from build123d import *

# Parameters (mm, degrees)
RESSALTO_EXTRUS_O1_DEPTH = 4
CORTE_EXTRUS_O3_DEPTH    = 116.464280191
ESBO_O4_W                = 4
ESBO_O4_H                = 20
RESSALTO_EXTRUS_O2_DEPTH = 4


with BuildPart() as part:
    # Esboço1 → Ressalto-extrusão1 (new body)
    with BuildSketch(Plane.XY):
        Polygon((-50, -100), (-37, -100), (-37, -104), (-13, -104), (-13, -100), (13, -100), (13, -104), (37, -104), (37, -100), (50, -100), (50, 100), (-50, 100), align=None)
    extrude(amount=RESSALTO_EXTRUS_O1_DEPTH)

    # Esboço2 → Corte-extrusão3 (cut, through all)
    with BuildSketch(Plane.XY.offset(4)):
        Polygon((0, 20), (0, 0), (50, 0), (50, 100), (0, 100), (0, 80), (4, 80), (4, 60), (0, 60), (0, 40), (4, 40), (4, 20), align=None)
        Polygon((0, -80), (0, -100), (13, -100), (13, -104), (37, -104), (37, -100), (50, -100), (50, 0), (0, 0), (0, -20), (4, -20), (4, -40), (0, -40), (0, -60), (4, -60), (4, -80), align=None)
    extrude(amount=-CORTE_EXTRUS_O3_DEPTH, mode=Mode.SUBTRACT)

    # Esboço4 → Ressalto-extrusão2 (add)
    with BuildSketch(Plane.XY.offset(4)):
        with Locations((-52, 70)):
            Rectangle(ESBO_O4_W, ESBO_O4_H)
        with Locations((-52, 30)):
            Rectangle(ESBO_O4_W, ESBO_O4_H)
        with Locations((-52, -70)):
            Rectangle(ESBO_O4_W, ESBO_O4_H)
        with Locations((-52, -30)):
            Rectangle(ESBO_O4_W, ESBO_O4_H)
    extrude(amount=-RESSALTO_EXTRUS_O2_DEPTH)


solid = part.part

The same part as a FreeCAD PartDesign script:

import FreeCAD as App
import Part
import Sketcher
from FreeCAD import Vector
Q = App.Units.Quantity


def add_polygon(sketch, points):
    """Adds a closed chain of lines whose ends are joined by coincident constraints."""
    first, n = sketch.GeometryCount, len(points)
    for a, b in zip(points, points[1:] + points[:1]):
        sketch.addGeometry(Part.LineSegment(App.Vector(*a, 0), App.Vector(*b, 0)), False)
    for i in range(n):
        sketch.addConstraint(Sketcher.Constraint("Coincident", first + i, 2, first + (i + 1) % n, 1))

doc = App.newDocument("Part")
body = doc.addObject("PartDesign::Body", "Body")

sketch1 = body.newObject("Sketcher::SketchObject", "Sketch")
sketch1.AttachmentSupport = (doc.getObject("XY_Plane"), [""])
sketch1.MapMode = "FlatFace"
add_polygon(sketch1, [(-50, -100), (-37, -100), (-37, -104), (-13, -104), (-13, -100), (13, -100), (13, -104), (37, -104), (37, -100), (50, -100), (50, 100), (-50, 100)])
sketch1.addConstraint(Sketcher.Constraint("Horizontal", 0))
sketch1.addConstraint(Sketcher.Constraint("Vertical", 1))
sketch1.addConstraint(Sketcher.Constraint("Horizontal", 2))
sketch1.addConstraint(Sketcher.Constraint("Vertical", 3))
sketch1.addConstraint(Sketcher.Constraint("Horizontal", 4))
sketch1.addConstraint(Sketcher.Constraint("Vertical", 5))
sketch1.addConstraint(Sketcher.Constraint("Horizontal", 6))
sketch1.addConstraint(Sketcher.Constraint("Vertical", 7))
sketch1.addConstraint(Sketcher.Constraint("Horizontal", 8))
sketch1.addConstraint(Sketcher.Constraint("Vertical", 9))
sketch1.addConstraint(Sketcher.Constraint("Horizontal", 10))
sketch1.addConstraint(Sketcher.Constraint("Vertical", 11))
sketch1.addConstraint(Sketcher.Constraint("Symmetric", 8, 2, 10, 2, -1, 1))
sketch1.addConstraint(Sketcher.Constraint("Symmetric", 2, 2, 5, 2, -2))
sketch1.addConstraint(Sketcher.Constraint("Symmetric", 0, 2, 7, 2, -2))
sketch1.addConstraint(Sketcher.Constraint("Horizontal", 0, 2, 3, 2))
sketch1.addConstraint(Sketcher.Constraint("DistanceX", 0, 1, 0, 2, Q("13 mm")))
sketch1.addConstraint(Sketcher.Constraint("DistanceX", 2, 1, 2, 2, Q("24 mm")))
sketch1.addConstraint(Sketcher.Constraint("DistanceX", 4, 1, 4, 2, Q("26 mm")))
sketch1.addConstraint(Sketcher.Constraint("DistanceY", 1, 2, 1, 1, Q("4 mm")))
sketch1.addConstraint(Sketcher.Constraint("DistanceY", 9, 1, 9, 2, Q("200 mm")))
pad1 = body.newObject("PartDesign::Pad", "Pad")
pad1.Profile = sketch1
pad1.Length = 4

sketch2 = body.newObject("Sketcher::SketchObject", "Sketch001")
sketch2.AttachmentSupport = (doc.getObject("XY_Plane"), [""])
sketch2.MapMode = "FlatFace"
sketch2.AttachmentOffset = App.Placement(Vector(0, 0, 4), App.Rotation())
add_polygon(sketch2, [(0, 20), (0, -20), (4, -20), (4, -40), (0, -40), (0, -60), (4, -60), (4, -80), (0, -80), (0, -100), (13, -100), (13, -104), (37, -104), (37, -100), (50, -100), (50, 100), (0, 100), (0, 80), (4, 80), (4, 60), (0, 60), (0, 40), (4, 40), (4, 20)])
sketch2.addConstraint(Sketcher.Constraint("Vertical", 0))
sketch2.addConstraint(Sketcher.Constraint("Horizontal", 1))
sketch2.addConstraint(Sketcher.Constraint("Vertical", 2))
sketch2.addConstraint(Sketcher.Constraint("Horizontal", 3))
sketch2.addConstraint(Sketcher.Constraint("Vertical", 4))
sketch2.addConstraint(Sketcher.Constraint("Horizontal", 5))
sketch2.addConstraint(Sketcher.Constraint("Vertical", 6))
sketch2.addConstraint(Sketcher.Constraint("Horizontal", 7))
sketch2.addConstraint(Sketcher.Constraint("Vertical", 8))
sketch2.addConstraint(Sketcher.Constraint("Horizontal", 9))
sketch2.addConstraint(Sketcher.Constraint("Vertical", 10))
sketch2.addConstraint(Sketcher.Constraint("Horizontal", 11))
sketch2.addConstraint(Sketcher.Constraint("Vertical", 12))
sketch2.addConstraint(Sketcher.Constraint("Horizontal", 13))
sketch2.addConstraint(Sketcher.Constraint("Vertical", 14))
sketch2.addConstraint(Sketcher.Constraint("Horizontal", 15))
sketch2.addConstraint(Sketcher.Constraint("Vertical", 16))
sketch2.addConstraint(Sketcher.Constraint("Horizontal", 17))
sketch2.addConstraint(Sketcher.Constraint("Vertical", 18))
sketch2.addConstraint(Sketcher.Constraint("Horizontal", 19))
sketch2.addConstraint(Sketcher.Constraint("Vertical", 20))
sketch2.addConstraint(Sketcher.Constraint("Horizontal", 21))
sketch2.addConstraint(Sketcher.Constraint("Vertical", 22))
sketch2.addConstraint(Sketcher.Constraint("Horizontal", 23))
sketch2.addConstraint(Sketcher.Constraint("Symmetric", 8, 2, 15, 2, -1, 1))
sketch2.addConstraint(Sketcher.Constraint("Symmetric", 4, 2, 19, 2, -1, 1))
sketch2.addConstraint(Sketcher.Constraint("Symmetric", 0, 2, 23, 2, -1, 1))
sketch2.addConstraint(Sketcher.Constraint("Symmetric", 7, 2, 16, 2, -1))
sketch2.addConstraint(Sketcher.Constraint("Symmetric", 3, 2, 20, 2, -1))
sketch2.addConstraint(Sketcher.Constraint("Horizontal", 9, 2, 12, 2))
sketch2.addConstraint(Sketcher.Constraint("Vertical", 2, 2, 5, 2))
sketch2.addConstraint(Sketcher.Constraint("Vertical", 6, 2, 17, 2))
sketch2.addConstraint(Sketcher.Constraint("Vertical", 18, 2, 21, 2))
sketch2.addConstraint(Sketcher.Constraint("Equal", 9, 13))
sketch2.addConstraint(Sketcher.Constraint("Equal", 2, 4))
sketch2.addConstraint(Sketcher.Constraint("Equal", 4, 6))
sketch2.addConstraint(Sketcher.Constraint("Equal", 6, 8))
sketch2.addConstraint(Sketcher.Constraint("Equal", 23, 10))
sketch2.addConstraint(Sketcher.Constraint("DistanceX", 1, 1, 1, 2, Q("4 mm")))
sketch2.addConstraint(Sketcher.Constraint("DistanceX", 9, 1, 9, 2, Q("13 mm")))
sketch2.addConstraint(Sketcher.Constraint("DistanceX", 11, 1, 11, 2, Q("24 mm")))
sketch2.addConstraint(Sketcher.Constraint("DistanceY", 0, 2, 0, 1, Q("40 mm")))
sketch2.addConstraint(Sketcher.Constraint("DistanceY", 2, 2, 2, 1, Q("20 mm")))
pocket1 = body.newObject("PartDesign::Pocket", "Pocket")
pocket1.Profile = sketch2
pocket1.Type = "ThroughAll"

sketch3 = body.newObject("Sketcher::SketchObject", "Sketch002")
sketch3.AttachmentSupport = (doc.getObject("XY_Plane"), [""])
sketch3.MapMode = "FlatFace"
sketch3.AttachmentOffset = App.Placement(Vector(0, 0, 4), App.Rotation())
add_polygon(sketch3, [(-54, 80), (-54, 60), (-50, 60), (-50, 80)])
add_polygon(sketch3, [(-54, 40), (-54, 20), (-50, 20), (-50, 40)])
add_polygon(sketch3, [(-54, -60), (-54, -80), (-50, -80), (-50, -60)])
add_polygon(sketch3, [(-54, -20), (-54, -40), (-50, -40), (-50, -20)])
sketch3.addConstraint(Sketcher.Constraint("Vertical", 0))
sketch3.addConstraint(Sketcher.Constraint("Horizontal", 1))
sketch3.addConstraint(Sketcher.Constraint("Vertical", 2))
sketch3.addConstraint(Sketcher.Constraint("Horizontal", 3))
sketch3.addConstraint(Sketcher.Constraint("Vertical", 4))
sketch3.addConstraint(Sketcher.Constraint("Horizontal", 5))
sketch3.addConstraint(Sketcher.Constraint("Vertical", 6))
sketch3.addConstraint(Sketcher.Constraint("Horizontal", 7))
sketch3.addConstraint(Sketcher.Constraint("Vertical", 8))
sketch3.addConstraint(Sketcher.Constraint("Horizontal", 9))
sketch3.addConstraint(Sketcher.Constraint("Vertical", 10))
sketch3.addConstraint(Sketcher.Constraint("Horizontal", 11))
sketch3.addConstraint(Sketcher.Constraint("Vertical", 12))
sketch3.addConstraint(Sketcher.Constraint("Horizontal", 13))
sketch3.addConstraint(Sketcher.Constraint("Vertical", 14))
sketch3.addConstraint(Sketcher.Constraint("Horizontal", 15))
sketch3.addConstraint(Sketcher.Constraint("Symmetric", 3, 2, 8, 2, -1))
sketch3.addConstraint(Sketcher.Constraint("Symmetric", 1, 2, 10, 2, -1))
sketch3.addConstraint(Sketcher.Constraint("Symmetric", 7, 2, 12, 2, -1))
sketch3.addConstraint(Sketcher.Constraint("Symmetric", 5, 2, 14, 2, -1))
sketch3.addConstraint(Sketcher.Constraint("Vertical", 3, 2, 4, 2))
sketch3.addConstraint(Sketcher.Constraint("Vertical", 2, 2, 5, 2))
sketch3.addConstraint(Sketcher.Constraint("Equal", 2, 4))
sketch3.addConstraint(Sketcher.Constraint("DistanceX", 1, 1, 1, 2, Q("4 mm")))
sketch3.addConstraint(Sketcher.Constraint("DistanceY", 0, 2, 0, 1, Q("20 mm")))
sketch3.addConstraint(Sketcher.Constraint("DistanceX", 0, 2, -1, 1, Q("54 mm")))
sketch3.addConstraint(Sketcher.Constraint("DistanceY", -1, 1, 0, 2, Q("60 mm")))
sketch3.addConstraint(Sketcher.Constraint("DistanceY", -1, 1, 4, 2, Q("20 mm")))
pad2 = body.newObject("PartDesign::Pad", "Pad001")
pad2.Profile = sketch3
pad2.Length = 4
pad2.Reversed = True

doc.recompute()
